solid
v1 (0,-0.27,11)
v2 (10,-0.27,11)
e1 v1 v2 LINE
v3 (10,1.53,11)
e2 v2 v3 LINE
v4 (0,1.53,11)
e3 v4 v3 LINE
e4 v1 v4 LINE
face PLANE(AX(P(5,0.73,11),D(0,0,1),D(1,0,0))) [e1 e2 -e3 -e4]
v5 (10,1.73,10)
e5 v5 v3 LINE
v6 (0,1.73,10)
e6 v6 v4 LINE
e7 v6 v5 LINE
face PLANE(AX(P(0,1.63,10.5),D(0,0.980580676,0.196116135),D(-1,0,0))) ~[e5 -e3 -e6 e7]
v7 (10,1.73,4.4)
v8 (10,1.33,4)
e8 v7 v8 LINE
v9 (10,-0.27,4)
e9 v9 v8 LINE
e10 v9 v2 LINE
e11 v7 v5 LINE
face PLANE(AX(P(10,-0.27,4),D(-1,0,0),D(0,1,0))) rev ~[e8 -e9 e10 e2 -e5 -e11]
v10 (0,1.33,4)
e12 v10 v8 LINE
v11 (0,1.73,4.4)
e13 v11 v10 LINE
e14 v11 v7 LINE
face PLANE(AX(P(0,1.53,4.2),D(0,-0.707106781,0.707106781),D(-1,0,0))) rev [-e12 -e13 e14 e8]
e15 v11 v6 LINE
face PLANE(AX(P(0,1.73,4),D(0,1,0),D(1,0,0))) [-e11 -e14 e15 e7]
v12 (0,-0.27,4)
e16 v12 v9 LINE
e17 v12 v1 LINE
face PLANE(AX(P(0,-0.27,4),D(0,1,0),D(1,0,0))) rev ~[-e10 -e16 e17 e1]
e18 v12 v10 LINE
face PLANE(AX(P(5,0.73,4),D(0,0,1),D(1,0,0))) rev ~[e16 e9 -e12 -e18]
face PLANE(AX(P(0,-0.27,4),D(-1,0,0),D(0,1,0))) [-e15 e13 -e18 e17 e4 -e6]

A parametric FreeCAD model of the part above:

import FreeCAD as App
import Part
import Sketcher
from FreeCAD import Vector
Q = App.Units.Quantity


def edges_at(feature, points):
    """Names of the edges that pass closest to the given points."""
    edges = feature.Shape.Edges
    near = lambda p: min(range(len(edges)), key=lambda i: edges[i].distToShape(Part.Vertex(*p))[0])
    return sorted({f"Edge{near(p) + 1}" for p in points})

doc = App.newDocument("Part")
body = doc.addObject("PartDesign::Body", "Body")

# Sketch on XY plane
sketch1 = body.newObject("Sketcher::SketchObject", "Sketch")
sketch1.AttachmentSupport = (doc.getObject("XY_Plane"), [""])
sketch1.MapMode = "FlatFace"
sketch1.AttachmentOffset = App.Placement(Vector(0, 0, 4), App.Rotation())
sketch1.addGeometry([
    Part.LineSegment(Vector(0, 1.7, 0), Vector(0, -0.3, 0)),
    Part.LineSegment(Vector(0, -0.3, 0), Vector(10, -0.3, 0)),
    Part.LineSegment(Vector(10, -0.3, 0), Vector(10, 1.7, 0)),
    Part.LineSegment(Vector(10, 1.7, 0), Vector(0, 1.7, 0)),
], False)
sketch1.addConstraint([
    Sketcher.Constraint("Coincident", 0, 2, 1, 1),
    Sketcher.Constraint("Coincident", 1, 2, 2, 1),
    Sketcher.Constraint("Coincident", 2, 2, 3, 1),
    Sketcher.Constraint("Coincident", 3, 2, 0, 1),
    Sketcher.Constraint("Vertical", 0),
    Sketcher.Constraint("Horizontal", 1),
    Sketcher.Constraint("Vertical", 2),
    Sketcher.Constraint("Horizontal", 3),
    Sketcher.Constraint("PointOnObject", 0, 2, -2),
    Sketcher.Constraint("DistanceX", 1, 1, 1, 2, Q("10 mm")),
    Sketcher.Constraint("DistanceY", 0, 2, 0, 1, Q("2 mm")),
    Sketcher.Constraint("DistanceY", 0, 2, -1, 1, Q("0.27 mm")),
])
pad1 = body.newObject("PartDesign::Pad", "Pad")
pad1.Profile = sketch1
pad1.Length = 7
doc.recompute()

chamfer = body.newObject("PartDesign::Chamfer", "Chamfer")
chamfer.Base = (pad1, edges_at(pad1, [(5, 1.73, 11)]))
chamfer.ChamferType = "Two distances"
chamfer.Size = 1
chamfer.Size2 = 0.2
doc.recompute()

chamfer2 = body.newObject("PartDesign::Chamfer", "Chamfer001")
chamfer2.Base = (chamfer, edges_at(chamfer, [(5, 1.73, 4)]))
chamfer2.Size = 0.4

doc.recompute()
